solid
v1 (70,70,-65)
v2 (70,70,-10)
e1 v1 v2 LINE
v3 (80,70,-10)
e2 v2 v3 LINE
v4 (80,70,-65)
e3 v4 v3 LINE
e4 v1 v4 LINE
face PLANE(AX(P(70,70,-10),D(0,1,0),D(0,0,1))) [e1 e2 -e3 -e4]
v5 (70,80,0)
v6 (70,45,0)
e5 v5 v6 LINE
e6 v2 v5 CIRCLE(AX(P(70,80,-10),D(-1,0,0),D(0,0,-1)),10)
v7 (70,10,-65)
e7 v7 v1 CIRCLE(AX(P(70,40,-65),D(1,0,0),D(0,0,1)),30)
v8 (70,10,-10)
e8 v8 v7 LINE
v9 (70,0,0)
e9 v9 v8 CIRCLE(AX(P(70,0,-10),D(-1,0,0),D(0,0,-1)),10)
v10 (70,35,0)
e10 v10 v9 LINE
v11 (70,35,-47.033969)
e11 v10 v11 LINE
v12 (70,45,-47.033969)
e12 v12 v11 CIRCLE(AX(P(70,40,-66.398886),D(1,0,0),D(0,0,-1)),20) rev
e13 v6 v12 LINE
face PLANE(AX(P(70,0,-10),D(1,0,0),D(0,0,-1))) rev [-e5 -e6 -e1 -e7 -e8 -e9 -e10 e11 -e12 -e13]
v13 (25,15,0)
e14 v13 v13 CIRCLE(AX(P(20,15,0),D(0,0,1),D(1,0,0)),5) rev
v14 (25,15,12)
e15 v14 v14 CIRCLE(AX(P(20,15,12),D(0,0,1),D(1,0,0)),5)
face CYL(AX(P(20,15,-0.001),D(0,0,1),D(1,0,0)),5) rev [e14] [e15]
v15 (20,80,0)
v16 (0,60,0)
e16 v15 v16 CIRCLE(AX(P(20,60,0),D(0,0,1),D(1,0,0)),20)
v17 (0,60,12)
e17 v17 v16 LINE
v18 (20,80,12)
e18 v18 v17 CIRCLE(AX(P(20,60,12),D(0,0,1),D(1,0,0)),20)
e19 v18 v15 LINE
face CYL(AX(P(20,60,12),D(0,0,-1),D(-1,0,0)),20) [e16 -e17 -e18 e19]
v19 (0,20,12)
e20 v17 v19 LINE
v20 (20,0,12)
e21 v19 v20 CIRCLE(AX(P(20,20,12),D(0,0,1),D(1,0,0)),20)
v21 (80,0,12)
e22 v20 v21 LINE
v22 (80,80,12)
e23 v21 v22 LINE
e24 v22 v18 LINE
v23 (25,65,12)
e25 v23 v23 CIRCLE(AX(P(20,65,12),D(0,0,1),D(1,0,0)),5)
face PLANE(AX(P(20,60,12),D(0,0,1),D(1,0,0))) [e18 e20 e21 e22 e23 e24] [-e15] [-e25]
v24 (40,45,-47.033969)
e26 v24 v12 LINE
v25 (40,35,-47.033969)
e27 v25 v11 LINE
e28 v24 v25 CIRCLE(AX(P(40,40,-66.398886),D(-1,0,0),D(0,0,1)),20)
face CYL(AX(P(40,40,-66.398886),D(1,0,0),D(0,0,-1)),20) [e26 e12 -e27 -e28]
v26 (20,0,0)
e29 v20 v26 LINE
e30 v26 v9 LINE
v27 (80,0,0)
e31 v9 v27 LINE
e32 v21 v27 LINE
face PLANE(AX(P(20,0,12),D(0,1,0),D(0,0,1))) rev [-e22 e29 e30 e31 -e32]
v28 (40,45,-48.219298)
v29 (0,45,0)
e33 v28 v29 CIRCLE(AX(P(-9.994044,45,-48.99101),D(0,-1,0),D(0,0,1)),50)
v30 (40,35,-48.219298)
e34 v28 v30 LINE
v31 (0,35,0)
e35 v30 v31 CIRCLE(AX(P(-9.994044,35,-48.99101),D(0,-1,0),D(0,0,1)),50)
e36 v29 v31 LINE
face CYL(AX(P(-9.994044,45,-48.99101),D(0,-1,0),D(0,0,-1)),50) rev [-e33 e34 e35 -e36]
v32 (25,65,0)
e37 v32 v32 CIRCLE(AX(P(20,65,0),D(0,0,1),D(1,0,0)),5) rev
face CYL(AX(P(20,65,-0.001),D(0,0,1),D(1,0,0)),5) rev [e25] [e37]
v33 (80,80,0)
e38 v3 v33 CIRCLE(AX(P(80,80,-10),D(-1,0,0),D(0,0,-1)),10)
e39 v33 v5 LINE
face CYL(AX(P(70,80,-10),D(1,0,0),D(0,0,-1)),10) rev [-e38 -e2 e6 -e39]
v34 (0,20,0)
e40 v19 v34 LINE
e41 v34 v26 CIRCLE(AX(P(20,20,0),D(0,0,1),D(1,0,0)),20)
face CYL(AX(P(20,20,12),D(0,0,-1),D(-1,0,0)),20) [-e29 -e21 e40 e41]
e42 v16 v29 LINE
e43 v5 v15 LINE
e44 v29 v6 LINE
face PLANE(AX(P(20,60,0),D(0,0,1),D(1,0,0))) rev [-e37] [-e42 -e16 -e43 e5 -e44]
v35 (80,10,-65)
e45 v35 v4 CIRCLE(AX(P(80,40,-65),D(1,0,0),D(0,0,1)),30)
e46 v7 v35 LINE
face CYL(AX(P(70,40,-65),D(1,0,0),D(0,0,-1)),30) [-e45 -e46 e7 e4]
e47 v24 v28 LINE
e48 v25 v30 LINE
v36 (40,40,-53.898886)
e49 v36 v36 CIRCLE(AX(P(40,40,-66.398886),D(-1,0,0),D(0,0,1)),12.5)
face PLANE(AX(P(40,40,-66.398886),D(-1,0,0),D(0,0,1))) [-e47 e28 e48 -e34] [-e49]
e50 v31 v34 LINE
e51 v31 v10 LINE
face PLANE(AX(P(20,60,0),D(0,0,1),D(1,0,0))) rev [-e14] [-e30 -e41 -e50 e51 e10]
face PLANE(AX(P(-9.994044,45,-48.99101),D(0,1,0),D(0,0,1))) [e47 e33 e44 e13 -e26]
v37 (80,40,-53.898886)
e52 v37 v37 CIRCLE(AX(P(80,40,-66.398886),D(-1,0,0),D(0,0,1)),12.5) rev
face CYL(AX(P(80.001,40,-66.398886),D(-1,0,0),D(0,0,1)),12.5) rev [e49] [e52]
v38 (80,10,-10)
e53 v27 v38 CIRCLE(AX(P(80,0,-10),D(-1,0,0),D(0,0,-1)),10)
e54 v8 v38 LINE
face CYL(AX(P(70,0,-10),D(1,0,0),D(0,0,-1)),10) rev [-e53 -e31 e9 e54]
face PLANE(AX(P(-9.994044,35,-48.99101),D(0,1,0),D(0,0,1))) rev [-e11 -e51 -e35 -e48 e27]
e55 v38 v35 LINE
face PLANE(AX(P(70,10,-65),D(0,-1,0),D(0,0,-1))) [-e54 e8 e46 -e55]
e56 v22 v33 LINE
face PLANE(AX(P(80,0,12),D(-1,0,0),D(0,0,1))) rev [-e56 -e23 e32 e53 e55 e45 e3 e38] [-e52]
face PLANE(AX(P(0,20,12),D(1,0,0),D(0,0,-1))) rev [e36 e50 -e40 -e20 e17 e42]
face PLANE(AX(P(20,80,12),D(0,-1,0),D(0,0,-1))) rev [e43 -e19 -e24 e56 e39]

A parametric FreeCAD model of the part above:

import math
import FreeCAD as App
import Part
import Sketcher
from FreeCAD import Vector

doc = App.newDocument("Part")
body = doc.addObject("PartDesign::Body", "Body")

sketch1 = body.newObject("Sketcher::SketchObject", "Sketch")
sketch1.AttachmentSupport = (doc.getObject("XY_Plane"), [""])
sketch1.MapMode = "FlatFace"
sketch1.addGeometry([
    Part.LineSegment(Vector(20, 0, 0), Vector(80, 0, 0)),
    Part.LineSegment(Vector(80, 0, 0), Vector(80, 80, 0)),
    Part.LineSegment(Vector(80, 80, 0), Vector(20, 80, 0)),
    Part.ArcOfCircle(Part.Circle(Vector(20, 60, 0), Vector(0, 0, 1), 20), math.radians(90), math.radians(180)),
    Part.LineSegment(Vector(0, 60, 0), Vector(0, 20, 0)),
    Part.ArcOfCircle(Part.Circle(Vector(20, 20, 0), Vector(0, 0, 1), 20), math.radians(180), math.radians(270)),
], False)
sketch1.addConstraint([
    Sketcher.Constraint("Coincident", 0, 2, 1, 1),
    Sketcher.Constraint("Coincident", 1, 2, 2, 1),
    Sketcher.Constraint("Tangent", 2, 2, 3, 1),
    Sketcher.Constraint("Tangent", 3, 2, 4, 1),
    Sketcher.Constraint("Tangent", 4, 2, 5, 1),
    Sketcher.Constraint("Tangent", 5, 2, 0, 1),
    Sketcher.Constraint("Horizontal", 0),
    Sketcher.Constraint("Vertical", 1),
    Sketcher.Constraint("Horizontal", 2),
    Sketcher.Constraint("Vertical", 4),
    Sketcher.Constraint("Equal", 3, 5),
    Sketcher.Constraint("PointOnObject", 0, 2, -1),
    Sketcher.Constraint("PointOnObject", 3, 2, -2),
    Sketcher.Constraint("Radius", 3, 20.0),
    Sketcher.Constraint("DistanceX", 0, 1, 0, 2, 60.0),
    Sketcher.Constraint("DistanceY", 1, 1, 1, 2, 80.0),
])
pad1 = body.newObject("PartDesign::Pad", "Pad")
pad1.Profile = sketch1
pad1.Length = 12

sketch2 = body.newObject("Sketcher::SketchObject", "Sketch001")
sketch2.AttachmentSupport = (doc.getObject("XY_Plane"), [""])
sketch2.MapMode = "FlatFace"
sketch2.AttachmentOffset = App.Placement(Vector(0, 0, 12), App.Rotation())
sketch2.addGeometry(Part.Circle(Vector(20, 65, 0), Vector(0, 0, 1), 5), False)
sketch2.addConstraint([
    Sketcher.Constraint("Diameter", 0, 10.0),
    Sketcher.Constraint("DistanceX", -1, 1, 0, 3, 20.0),
    Sketcher.Constraint("DistanceY", -1, 1, 0, 3, 65.0),
])
pocket1 = body.newObject("PartDesign::Pocket", "Pocket")
pocket1.Profile = sketch2
pocket1.Type = "UpToFirst"

sketch3 = body.newObject("Sketcher::SketchObject", "Sketch002")
sketch3.AttachmentSupport = (doc.getObject("XY_Plane"), [""])
sketch3.MapMode = "FlatFace"
sketch3.AttachmentOffset = App.Placement(Vector(0, 0, 12), App.Rotation())
sketch3.addGeometry(Part.Circle(Vector(20, 15, 0), Vector(0, 0, 1), 5), False)
sketch3.addConstraint([
    Sketcher.Constraint("Diameter", 0, 10.0),
    Sketcher.Constraint("DistanceX", -1, 1, 0, 3, 20.0),
    Sketcher.Constraint("DistanceY", -1, 1, 0, 3, 15.0),
])
pocket2 = body.newObject("PartDesign::Pocket", "Pocket001")
pocket2.Profile = sketch3
pocket2.Type = "UpToFirst"

sketch4 = body.newObject("Sketcher::SketchObject", "Sketch003")
sketch4.AttachmentSupport = (doc.getObject("YZ_Plane"), [""])
sketch4.MapMode = "FlatFace"
sketch4.AttachmentOffset = App.Placement(Vector(0, 0, 80), App.Rotation())
sketch4.addGeometry([
    Part.LineSegment(Vector(70, -65, 0), Vector(70, -10, 0)),
    Part.ArcOfCircle(Part.Circle(Vector(80, -10, 0), Vector(0, 0, 1), 10), math.radians(90), math.radians(180)),
    Part.LineSegment(Vector(80, 0, 0), Vector(0, 0, 0)),
    Part.ArcOfCircle(Part.Circle(Vector(0, -10, 0), Vector(0, 0, 1), 10), math.radians(0), math.radians(90)),
    Part.LineSegment(Vector(10, -10, 0), Vector(10, -65, 0)),
    Part.ArcOfCircle(Part.Circle(Vector(40, -65, 0), Vector(0, 0, 1), 30), math.radians(180), math.radians(360)),
], False)
sketch4.addConstraint([
    Sketcher.Constraint("Tangent", 0, 2, 1, 2),
    Sketcher.Constraint("Tangent", 1, 1, 2, 1),
    Sketcher.Constraint("Tangent", 2, 2, 3, 2),
    Sketcher.Constraint("Tangent", 3, 1, 4, 1),
    Sketcher.Constraint("Tangent", 4, 2, 5, 1),
    Sketcher.Constraint("Tangent", 5, 2, 0, 1),
    Sketcher.Constraint("Vertical", 0),
    Sketcher.Constraint("Horizontal", 2),
    Sketcher.Constraint("Vertical", 4),
    Sketcher.Constraint("Coincident", 2, 2, -1, 1),
    Sketcher.Constraint("Equal", 1, 3),
    Sketcher.Constraint("Radius", 1, 10.0),
    Sketcher.Constraint("Radius", 5, 30.0),
    Sketcher.Constraint("DistanceY", 0, 1, 0, 2, 55.0),
])
pad2 = body.newObject("PartDesign::Pad", "Pad001")
pad2.Profile = sketch4
pad2.Length = 10
pad2.Reversed = True

sketch5 = body.newObject("Sketcher::SketchObject", "Sketch004")
sketch5.AttachmentSupport = (doc.getObject("YZ_Plane"), [""])
sketch5.MapMode = "FlatFace"
sketch5.AttachmentOffset = App.Placement(Vector(0, 0, 70), App.Rotation())
sketch5.addGeometry(Part.Circle(Vector(40, -66, 0), Vector(0, 0, 1), 20), False)
sketch5.addConstraint([
    Sketcher.Constraint("Diameter", 0, 40.0),
    Sketcher.Constraint("DistanceX", -1, 1, 0, 3, 40.0),
    Sketcher.Constraint("DistanceY", 0, 3, -1, 1, 66.398886),
])
pad3 = body.newObject("PartDesign::Pad", "Pad002")
pad3.Profile = sketch5
pad3.Length = 30
pad3.Reversed = True

sketch6 = body.newObject("Sketcher::SketchObject", "Sketch005")
sketch6.AttachmentSupport = (doc.getObject("YZ_Plane"), [""])
sketch6.MapMode = "FlatFace"
sketch6.AttachmentOffset = App.Placement(Vector(0, 0, 40), App.Rotation())
sketch6.addGeometry(Part.Circle(Vector(40, -66, 0), Vector(0, 0, 1), 12), False)
sketch6.addConstraint([
    Sketcher.Constraint("Diameter", 0, 25.0),
    Sketcher.Constraint("DistanceX", -1, 1, 0, 3, 40.0),
    Sketcher.Constraint("DistanceY", 0, 3, -1, 1, 66.398886),
])
pocket3 = body.newObject("PartDesign::Pocket", "Pocket002")
pocket3.Profile = sketch6
pocket3.Type = "UpToFirst"
pocket3.Reversed = True

sketch7 = body.newObject("Sketcher::SketchObject", "Sketch006")
sketch7.AttachmentSupport = (doc.getObject("XZ_Plane"), [""])
sketch7.MapMode = "FlatFace"
sketch7.AttachmentOffset = App.Placement(Vector(0, 0, -40), App.Rotation())
sketch7.addGeometry([
    Part.LineSegment(Vector(70, -48, 0), Vector(40, -48, 0)),
    Part.ArcOfCircle(Part.Circle(Vector(-10, -49, 0), Vector(0, 0, 1), 50), math.radians(1), math.radians(78)),
    Part.LineSegment(Vector(0, 0, 0), Vector(70, 0, 0)),
    Part.LineSegment(Vector(70, 0, 0), Vector(70, -48, 0)),
], False)
sketch7.addConstraint([
    Sketcher.Constraint("Coincident", 0, 2, 1, 1),
    Sketcher.Constraint("Coincident", 1, 2, 2, 1),
    Sketcher.Constraint("Coincident", 2, 2, 3, 1),
    Sketcher.Constraint("Coincident", 3, 2, 0, 1),
    Sketcher.Constraint("Horizontal", 0),
    Sketcher.Constraint("Horizontal", 2),
    Sketcher.Constraint("Vertical", 3),
    Sketcher.Constraint("Coincident", 1, 2, -1, 1),
    Sketcher.Constraint("Radius", 1, 50.0),
    Sketcher.Constraint("DistanceX", 0, 2, 0, 1, 30.0),
    Sketcher.Constraint("DistanceX", 2, 1, 2, 2, 70.0),
    Sketcher.Constraint("DistanceY", 3, 2, 3, 1, 48.219298),
])
pad4 = body.newObject("PartDesign::Pad", "Pad003")
pad4.Profile = sketch7
pad4.Length = 10
pad4.Midplane = True

doc.recompute()
